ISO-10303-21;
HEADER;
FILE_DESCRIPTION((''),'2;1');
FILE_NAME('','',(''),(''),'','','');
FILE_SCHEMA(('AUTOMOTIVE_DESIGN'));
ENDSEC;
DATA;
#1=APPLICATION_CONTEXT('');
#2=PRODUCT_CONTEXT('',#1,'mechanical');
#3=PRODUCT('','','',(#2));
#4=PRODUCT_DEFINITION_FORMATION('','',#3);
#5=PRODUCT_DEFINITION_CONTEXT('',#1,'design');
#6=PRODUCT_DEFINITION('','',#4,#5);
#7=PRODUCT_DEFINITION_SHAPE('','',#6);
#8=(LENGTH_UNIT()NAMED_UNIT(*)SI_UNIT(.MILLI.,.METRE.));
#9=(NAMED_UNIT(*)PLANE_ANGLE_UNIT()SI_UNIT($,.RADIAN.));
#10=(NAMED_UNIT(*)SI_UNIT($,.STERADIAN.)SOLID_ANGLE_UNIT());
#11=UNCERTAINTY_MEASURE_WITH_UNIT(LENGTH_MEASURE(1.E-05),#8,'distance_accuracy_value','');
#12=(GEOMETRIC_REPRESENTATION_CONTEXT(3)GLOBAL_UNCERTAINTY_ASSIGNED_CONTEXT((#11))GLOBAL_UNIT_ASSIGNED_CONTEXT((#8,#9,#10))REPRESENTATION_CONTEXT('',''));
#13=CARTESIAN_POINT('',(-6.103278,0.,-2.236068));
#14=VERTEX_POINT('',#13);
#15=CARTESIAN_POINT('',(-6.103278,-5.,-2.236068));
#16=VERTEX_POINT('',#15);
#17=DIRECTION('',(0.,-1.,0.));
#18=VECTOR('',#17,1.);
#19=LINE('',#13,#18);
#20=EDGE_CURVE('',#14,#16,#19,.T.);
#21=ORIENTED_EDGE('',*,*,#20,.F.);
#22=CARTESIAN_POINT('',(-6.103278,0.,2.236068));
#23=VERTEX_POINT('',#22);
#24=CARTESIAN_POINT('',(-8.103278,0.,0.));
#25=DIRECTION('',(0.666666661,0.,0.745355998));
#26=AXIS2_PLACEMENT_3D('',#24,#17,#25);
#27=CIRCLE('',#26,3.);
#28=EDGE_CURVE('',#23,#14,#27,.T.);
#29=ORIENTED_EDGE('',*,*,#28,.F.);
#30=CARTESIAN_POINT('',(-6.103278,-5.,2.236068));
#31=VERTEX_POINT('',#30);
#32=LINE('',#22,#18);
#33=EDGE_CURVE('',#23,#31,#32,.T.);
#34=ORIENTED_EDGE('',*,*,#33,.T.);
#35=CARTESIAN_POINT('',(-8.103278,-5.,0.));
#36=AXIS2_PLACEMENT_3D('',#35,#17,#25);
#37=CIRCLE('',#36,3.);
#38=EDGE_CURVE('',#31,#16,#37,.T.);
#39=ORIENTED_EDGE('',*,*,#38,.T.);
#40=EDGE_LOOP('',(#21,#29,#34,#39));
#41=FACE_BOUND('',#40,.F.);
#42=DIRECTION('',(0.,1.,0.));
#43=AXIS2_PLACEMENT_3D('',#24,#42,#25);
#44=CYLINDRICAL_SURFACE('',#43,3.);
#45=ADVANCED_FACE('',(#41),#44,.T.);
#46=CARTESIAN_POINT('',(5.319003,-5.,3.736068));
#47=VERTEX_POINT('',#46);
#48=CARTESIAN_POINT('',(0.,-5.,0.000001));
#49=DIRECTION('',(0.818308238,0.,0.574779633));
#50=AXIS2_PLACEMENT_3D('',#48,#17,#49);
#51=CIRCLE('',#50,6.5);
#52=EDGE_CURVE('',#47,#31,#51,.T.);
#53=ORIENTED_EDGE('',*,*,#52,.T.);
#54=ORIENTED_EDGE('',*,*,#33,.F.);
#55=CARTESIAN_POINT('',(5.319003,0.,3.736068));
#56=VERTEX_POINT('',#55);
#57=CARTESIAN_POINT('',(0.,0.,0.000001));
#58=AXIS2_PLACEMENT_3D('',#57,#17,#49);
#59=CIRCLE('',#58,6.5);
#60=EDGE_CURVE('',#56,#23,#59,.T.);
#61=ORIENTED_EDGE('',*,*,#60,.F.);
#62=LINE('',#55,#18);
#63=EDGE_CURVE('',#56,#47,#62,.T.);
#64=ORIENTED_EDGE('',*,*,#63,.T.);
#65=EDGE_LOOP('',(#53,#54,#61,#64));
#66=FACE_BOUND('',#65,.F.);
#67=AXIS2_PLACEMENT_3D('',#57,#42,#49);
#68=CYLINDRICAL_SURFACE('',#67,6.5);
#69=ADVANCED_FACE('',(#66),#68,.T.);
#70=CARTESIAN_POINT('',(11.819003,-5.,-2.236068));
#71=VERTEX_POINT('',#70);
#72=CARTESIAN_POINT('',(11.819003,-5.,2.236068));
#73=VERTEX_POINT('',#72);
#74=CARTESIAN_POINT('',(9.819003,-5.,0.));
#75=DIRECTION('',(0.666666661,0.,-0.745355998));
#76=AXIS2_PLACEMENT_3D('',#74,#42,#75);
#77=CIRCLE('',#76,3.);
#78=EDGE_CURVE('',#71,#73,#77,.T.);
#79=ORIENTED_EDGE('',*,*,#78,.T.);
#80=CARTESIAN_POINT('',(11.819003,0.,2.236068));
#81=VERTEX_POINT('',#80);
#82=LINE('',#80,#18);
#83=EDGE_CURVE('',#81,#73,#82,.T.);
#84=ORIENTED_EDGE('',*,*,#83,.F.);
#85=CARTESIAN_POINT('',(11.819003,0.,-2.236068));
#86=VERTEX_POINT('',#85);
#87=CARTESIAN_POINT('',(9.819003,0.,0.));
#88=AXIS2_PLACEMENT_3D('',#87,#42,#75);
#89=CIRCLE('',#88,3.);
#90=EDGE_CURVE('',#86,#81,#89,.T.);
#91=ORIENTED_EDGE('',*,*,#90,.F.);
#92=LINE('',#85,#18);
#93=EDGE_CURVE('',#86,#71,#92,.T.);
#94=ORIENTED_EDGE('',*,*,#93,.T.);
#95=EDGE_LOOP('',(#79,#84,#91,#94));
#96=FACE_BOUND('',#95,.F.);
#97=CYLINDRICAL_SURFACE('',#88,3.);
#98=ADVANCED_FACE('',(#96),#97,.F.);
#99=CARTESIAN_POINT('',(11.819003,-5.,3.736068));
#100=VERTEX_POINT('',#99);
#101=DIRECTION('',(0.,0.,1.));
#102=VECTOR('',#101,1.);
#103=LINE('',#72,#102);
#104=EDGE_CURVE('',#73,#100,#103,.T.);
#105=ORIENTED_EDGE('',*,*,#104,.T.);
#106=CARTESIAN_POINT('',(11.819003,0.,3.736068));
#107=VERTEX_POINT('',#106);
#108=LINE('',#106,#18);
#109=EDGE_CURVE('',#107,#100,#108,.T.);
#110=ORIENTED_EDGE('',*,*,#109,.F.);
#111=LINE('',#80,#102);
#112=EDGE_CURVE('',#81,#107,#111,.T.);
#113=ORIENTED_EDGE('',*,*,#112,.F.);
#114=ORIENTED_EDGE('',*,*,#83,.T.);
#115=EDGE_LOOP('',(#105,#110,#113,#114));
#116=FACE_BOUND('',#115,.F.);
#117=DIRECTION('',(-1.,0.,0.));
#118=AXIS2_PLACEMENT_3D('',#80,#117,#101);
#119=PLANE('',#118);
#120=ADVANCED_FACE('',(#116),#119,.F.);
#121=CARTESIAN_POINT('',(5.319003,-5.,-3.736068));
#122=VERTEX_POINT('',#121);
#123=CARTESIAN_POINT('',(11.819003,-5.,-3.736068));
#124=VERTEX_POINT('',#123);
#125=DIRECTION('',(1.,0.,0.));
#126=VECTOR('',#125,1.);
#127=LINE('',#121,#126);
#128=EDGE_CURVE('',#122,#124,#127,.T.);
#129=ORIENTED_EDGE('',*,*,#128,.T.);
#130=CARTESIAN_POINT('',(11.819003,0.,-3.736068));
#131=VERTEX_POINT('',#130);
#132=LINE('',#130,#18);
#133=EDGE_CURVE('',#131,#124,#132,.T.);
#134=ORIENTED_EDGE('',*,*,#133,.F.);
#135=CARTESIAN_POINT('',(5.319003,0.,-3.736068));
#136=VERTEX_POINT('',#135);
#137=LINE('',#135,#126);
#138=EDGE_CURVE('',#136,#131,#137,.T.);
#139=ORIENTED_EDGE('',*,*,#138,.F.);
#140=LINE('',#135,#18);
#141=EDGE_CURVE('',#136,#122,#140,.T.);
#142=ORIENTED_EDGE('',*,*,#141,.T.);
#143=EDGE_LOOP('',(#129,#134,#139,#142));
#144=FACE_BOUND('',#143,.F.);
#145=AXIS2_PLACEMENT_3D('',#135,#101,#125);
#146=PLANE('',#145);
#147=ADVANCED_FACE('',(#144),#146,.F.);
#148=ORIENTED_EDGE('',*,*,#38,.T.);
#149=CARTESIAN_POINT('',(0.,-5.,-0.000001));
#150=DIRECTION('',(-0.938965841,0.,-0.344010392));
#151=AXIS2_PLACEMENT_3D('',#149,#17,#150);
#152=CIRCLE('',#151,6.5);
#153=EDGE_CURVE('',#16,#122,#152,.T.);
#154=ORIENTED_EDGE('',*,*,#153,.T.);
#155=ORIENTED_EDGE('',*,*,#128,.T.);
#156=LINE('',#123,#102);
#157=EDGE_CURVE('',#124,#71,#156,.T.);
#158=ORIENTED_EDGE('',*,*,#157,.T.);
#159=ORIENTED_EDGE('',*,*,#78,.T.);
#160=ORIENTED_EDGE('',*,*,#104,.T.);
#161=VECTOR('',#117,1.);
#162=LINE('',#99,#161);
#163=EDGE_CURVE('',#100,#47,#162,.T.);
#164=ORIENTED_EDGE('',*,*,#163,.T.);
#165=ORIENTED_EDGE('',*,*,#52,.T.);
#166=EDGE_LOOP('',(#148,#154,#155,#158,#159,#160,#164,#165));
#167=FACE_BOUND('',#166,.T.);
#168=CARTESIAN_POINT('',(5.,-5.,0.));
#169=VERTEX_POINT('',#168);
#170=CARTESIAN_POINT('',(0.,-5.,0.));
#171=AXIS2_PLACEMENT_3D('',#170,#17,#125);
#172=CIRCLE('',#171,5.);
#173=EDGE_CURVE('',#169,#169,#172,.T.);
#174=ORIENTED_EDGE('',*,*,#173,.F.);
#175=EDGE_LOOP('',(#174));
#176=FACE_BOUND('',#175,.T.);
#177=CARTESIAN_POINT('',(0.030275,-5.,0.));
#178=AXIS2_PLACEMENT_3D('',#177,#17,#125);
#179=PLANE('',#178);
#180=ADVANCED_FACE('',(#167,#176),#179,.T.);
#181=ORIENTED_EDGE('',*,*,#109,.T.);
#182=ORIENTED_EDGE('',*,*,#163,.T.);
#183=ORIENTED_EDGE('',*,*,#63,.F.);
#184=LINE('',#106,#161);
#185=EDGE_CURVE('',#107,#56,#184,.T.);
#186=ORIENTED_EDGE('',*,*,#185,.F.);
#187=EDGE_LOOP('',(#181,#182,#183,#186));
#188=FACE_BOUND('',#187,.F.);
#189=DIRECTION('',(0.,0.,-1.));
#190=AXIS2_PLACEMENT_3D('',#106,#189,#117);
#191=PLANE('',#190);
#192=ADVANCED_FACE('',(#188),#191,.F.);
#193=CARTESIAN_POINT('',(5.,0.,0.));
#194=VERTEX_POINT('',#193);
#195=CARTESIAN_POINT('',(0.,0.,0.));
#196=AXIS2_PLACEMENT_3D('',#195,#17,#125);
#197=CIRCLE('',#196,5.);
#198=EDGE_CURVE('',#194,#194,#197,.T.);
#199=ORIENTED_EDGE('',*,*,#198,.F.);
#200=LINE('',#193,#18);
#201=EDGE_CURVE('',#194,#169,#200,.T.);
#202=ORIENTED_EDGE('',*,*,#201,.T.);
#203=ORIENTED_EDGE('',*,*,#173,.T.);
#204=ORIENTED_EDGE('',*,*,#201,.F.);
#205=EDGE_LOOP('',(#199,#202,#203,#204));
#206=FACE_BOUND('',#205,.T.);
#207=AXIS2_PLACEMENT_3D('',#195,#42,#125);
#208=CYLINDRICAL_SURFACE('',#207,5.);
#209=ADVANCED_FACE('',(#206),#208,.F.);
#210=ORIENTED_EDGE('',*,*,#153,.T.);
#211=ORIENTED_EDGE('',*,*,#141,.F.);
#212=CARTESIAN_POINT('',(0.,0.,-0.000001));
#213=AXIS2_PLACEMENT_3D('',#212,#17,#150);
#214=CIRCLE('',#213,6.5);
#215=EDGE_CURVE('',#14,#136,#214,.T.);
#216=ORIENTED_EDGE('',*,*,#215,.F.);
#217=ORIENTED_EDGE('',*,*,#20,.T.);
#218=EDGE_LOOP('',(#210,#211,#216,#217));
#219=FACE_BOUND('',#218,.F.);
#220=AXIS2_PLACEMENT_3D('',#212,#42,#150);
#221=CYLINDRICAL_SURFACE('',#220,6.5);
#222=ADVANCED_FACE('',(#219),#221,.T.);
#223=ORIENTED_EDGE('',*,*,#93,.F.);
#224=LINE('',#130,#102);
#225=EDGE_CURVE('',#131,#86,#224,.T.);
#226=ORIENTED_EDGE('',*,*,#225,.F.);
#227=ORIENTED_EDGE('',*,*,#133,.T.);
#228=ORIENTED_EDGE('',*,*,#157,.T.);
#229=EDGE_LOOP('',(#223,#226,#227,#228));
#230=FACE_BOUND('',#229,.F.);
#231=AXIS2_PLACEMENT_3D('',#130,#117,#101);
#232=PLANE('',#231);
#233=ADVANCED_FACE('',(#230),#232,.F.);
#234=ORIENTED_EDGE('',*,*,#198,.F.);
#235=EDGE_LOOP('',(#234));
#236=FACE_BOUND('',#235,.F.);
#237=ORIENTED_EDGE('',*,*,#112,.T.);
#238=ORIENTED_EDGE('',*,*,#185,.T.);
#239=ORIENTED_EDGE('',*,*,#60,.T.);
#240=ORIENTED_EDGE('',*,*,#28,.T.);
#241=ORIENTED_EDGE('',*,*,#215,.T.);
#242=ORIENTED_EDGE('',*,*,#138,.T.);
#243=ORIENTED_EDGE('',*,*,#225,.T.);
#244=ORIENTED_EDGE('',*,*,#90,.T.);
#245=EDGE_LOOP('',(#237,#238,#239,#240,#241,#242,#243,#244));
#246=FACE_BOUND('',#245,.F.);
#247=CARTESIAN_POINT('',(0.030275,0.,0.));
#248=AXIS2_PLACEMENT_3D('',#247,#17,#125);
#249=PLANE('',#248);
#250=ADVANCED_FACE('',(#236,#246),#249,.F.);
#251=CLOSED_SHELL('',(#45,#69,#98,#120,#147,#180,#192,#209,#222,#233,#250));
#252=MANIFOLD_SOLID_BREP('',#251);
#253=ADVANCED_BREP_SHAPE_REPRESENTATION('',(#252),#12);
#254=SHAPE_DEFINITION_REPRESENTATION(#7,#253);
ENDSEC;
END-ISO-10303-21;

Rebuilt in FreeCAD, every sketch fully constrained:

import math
import FreeCAD as App
import Part
import Sketcher
from FreeCAD import Vector

doc = App.newDocument("Part")
body = doc.addObject("PartDesign::Body", "Body")

sketch1 = body.newObject("Sketcher::SketchObject", "Sketch")
sketch1.AttachmentSupport = (doc.getObject("XZ_Plane"), [""])
sketch1.MapMode = "FlatFace"
sketch1.addGeometry([
    Part.ArcOfCircle(Part.Circle(Vector(0, 0, 0), Vector(0, 0, 1), 6.5), math.radians(35), math.radians(160)),
    Part.ArcOfCircle(Part.Circle(Vector(-8.1, 0, 0), Vector(0, 0, 1), 3), math.radians(48), math.radians(312)),
    Part.ArcOfCircle(Part.Circle(Vector(0, 0, 0), Vector(0, 0, 1), 6.5), math.radians(-160), math.radians(-35)),
    Part.LineSegment(Vector(5.3, -3.7, 0), Vector(11.8, -3.7, 0)),
    Part.LineSegment(Vector(11.8, -3.7, 0), Vector(11.8, -2.2, 0)),
    Part.ArcOfCircle(Part.Circle(Vector(9.8, 0, 0), Vector(0, 0, 1), 3), math.radians(48), math.radians(312)),
    Part.LineSegment(Vector(11.8, 2.2, 0), Vector(11.8, 3.7, 0)),
    Part.LineSegment(Vector(11.8, 3.7, 0), Vector(5.3, 3.7, 0)),
    Part.Circle(Vector(0, 0, 0), Vector(0, 0, 1), 5),
], False)
sketch1.addConstraint([
    Sketcher.Constraint("Coincident", 0, 2, 1, 1),
    Sketcher.Constraint("Coincident", 1, 2, 2, 1),
    Sketcher.Constraint("Coincident", 2, 2, 3, 1),
    Sketcher.Constraint("Coincident", 3, 2, 4, 1),
    Sketcher.Constraint("Coincident", 4, 2, 5, 2),
    Sketcher.Constraint("Coincident", 5, 1, 6, 1),
    Sketcher.Constraint("Coincident", 6, 2, 7, 1),
    Sketcher.Constraint("Coincident", 7, 2, 0, 1),
    Sketcher.Constraint("Horizontal", 3),
    Sketcher.Constraint("Vertical", 4),
    Sketcher.Constraint("Vertical", 6),
    Sketcher.Constraint("Horizontal", 7),
    Sketcher.Constraint("Coincident", 0, 3, -1, 1),
    Sketcher.Constraint("Coincident", 2, 3, -1, 1),
    Sketcher.Constraint("Coincident", 8, 3, -1, 1),
    Sketcher.Constraint("Equal", 0, 2),
    Sketcher.Constraint("Equal", 1, 5),
    Sketcher.Constraint("Symmetric", 4, 2, 5, 1, -1),
    Sketcher.Constraint("PointOnObject", 1, 3, -1),
    Sketcher.Constraint("Horizontal", 1, 2, 4, 2),
    Sketcher.Constraint("Vertical", 2, 2, 7, 2),
    Sketcher.Constraint("Diameter", 8, 10.0),
    Sketcher.Constraint("Radius", 1, 3.0),
    Sketcher.Constraint("Radius", 0, 6.5),
    Sketcher.Constraint("DistanceX", 3, 1, 3, 2, 6.5),
    Sketcher.Constraint("DistanceY", 4, 1, 4, 2, 1.5),
    Sketcher.Constraint("DistanceX", 1, 3, 0, 2, 2.0),
])
pad1 = body.newObject("PartDesign::Pad", "Pad")
pad1.Profile = sketch1
pad1.Length = 5

doc.recompute()
